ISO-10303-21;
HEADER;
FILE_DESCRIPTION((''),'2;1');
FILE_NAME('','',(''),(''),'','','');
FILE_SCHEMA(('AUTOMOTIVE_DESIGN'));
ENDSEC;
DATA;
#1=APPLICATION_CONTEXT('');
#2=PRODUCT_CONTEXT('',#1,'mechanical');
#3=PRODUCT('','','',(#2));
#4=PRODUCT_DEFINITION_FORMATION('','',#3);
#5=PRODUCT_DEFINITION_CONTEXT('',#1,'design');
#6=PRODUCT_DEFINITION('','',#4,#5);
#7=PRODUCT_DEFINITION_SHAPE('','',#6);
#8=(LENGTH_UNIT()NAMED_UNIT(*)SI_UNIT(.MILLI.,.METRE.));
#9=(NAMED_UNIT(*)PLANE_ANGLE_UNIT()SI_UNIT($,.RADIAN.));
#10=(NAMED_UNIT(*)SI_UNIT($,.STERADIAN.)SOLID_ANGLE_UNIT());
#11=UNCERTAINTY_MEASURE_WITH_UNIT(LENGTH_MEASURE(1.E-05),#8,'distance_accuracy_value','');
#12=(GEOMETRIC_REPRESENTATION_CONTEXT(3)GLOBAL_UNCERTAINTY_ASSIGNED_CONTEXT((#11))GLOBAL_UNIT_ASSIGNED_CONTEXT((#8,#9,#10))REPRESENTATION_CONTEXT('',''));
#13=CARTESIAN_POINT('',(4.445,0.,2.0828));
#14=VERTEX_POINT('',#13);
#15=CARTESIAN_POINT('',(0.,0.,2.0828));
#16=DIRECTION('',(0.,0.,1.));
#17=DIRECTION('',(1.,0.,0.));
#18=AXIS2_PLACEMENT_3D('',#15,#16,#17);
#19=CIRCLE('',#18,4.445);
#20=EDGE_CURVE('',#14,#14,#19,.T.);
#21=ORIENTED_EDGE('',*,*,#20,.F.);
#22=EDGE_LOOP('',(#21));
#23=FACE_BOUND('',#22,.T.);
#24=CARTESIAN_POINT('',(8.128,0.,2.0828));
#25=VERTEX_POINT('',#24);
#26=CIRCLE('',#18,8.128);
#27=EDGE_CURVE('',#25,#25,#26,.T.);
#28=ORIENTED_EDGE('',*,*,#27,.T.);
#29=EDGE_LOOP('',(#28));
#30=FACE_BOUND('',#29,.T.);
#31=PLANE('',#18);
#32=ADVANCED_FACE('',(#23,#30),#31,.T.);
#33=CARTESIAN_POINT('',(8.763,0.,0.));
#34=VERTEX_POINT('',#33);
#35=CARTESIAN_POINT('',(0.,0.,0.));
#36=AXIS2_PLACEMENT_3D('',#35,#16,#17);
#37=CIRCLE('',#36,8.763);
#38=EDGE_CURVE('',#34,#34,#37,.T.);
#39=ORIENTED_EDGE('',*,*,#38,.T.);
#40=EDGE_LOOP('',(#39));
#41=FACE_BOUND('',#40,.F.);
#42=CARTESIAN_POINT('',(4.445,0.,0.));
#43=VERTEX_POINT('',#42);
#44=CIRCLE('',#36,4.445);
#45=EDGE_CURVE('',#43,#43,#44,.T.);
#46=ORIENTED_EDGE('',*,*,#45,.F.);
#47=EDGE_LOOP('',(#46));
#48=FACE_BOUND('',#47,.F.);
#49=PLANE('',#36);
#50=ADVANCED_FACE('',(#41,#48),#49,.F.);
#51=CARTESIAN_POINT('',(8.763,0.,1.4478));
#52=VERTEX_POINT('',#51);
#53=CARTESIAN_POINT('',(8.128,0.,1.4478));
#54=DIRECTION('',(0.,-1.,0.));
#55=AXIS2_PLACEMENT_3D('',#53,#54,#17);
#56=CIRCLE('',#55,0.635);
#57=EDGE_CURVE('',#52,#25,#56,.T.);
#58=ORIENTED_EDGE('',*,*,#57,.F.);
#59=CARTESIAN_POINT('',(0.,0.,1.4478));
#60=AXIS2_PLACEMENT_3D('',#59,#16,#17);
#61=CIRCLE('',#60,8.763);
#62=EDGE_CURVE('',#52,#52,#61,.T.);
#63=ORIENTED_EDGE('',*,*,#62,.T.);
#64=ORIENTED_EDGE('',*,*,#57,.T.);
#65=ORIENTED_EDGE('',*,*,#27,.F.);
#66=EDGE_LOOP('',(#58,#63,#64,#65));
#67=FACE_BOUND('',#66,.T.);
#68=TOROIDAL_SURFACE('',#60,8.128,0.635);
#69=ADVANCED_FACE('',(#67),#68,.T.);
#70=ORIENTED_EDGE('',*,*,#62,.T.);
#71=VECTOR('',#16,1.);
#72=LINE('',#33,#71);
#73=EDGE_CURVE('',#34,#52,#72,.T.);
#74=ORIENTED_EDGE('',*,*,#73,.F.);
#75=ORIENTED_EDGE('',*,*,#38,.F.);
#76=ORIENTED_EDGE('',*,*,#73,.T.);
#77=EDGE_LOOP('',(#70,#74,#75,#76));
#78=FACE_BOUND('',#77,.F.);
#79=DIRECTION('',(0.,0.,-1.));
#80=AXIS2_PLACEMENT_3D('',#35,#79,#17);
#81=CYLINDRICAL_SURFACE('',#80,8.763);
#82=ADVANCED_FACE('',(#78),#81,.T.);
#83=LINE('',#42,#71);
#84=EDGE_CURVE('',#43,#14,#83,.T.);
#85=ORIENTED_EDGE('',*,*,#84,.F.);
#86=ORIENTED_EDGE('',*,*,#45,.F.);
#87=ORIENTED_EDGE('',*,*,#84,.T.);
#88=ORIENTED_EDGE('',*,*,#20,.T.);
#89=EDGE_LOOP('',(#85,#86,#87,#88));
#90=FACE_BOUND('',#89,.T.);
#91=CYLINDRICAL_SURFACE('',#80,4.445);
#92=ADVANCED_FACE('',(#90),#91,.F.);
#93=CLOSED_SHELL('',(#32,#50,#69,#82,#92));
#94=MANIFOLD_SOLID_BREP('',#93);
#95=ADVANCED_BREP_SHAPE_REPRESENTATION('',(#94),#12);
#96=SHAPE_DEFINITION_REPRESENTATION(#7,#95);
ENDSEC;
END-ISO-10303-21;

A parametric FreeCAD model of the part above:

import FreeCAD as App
import Part
import Sketcher

V = App.Vector
Q = App.Units.Quantity


def edges_at(feature, points):
    """Names of the edges that pass closest to the given points."""
    edges = feature.Shape.Edges
    near = lambda p: min(range(len(edges)), key=lambda i: edges[i].distToShape(Part.Vertex(*p))[0])
    return sorted({f"Edge{near(p) + 1}" for p in points})

doc = App.newDocument("Part")
body = doc.addObject("PartDesign::Body", "Body")

# Sketch on XY plane
sketch1 = body.newObject("Sketcher::SketchObject", "Sketch")
sketch1.AttachmentSupport = (doc.getObject("XY_Plane"), [""])
sketch1.MapMode = "FlatFace"
sketch1.addGeometry(Part.Circle(V(0, 0, 0), V(0, 0, 1), 8.8), False)
sketch1.addGeometry(Part.Circle(V(0, 0, 0), V(0, 0, 1), 4.4), False)
sketch1.addConstraint(Sketcher.Constraint("Coincident", 0, 3, -1, 1))
sketch1.addConstraint(Sketcher.Constraint("Coincident", 1, 3, -1, 1))
sketch1.addConstraint(Sketcher.Constraint("Diameter", 0, Q("0.69 in")))
sketch1.addConstraint(Sketcher.Constraint("Diameter", 1, Q("0.35 in")))
pad1 = body.newObject("PartDesign::Pad", "Pad")
pad1.Profile = sketch1
pad1.Length = Q("0.082 in")
doc.recompute()

fillet = body.newObject("PartDesign::Fillet", "Fillet")
fillet.Base = (pad1, edges_at(pad1, [(-8.763, 0, 2.083)]))
fillet.Radius = Q("0.025 in")

doc.recompute()
